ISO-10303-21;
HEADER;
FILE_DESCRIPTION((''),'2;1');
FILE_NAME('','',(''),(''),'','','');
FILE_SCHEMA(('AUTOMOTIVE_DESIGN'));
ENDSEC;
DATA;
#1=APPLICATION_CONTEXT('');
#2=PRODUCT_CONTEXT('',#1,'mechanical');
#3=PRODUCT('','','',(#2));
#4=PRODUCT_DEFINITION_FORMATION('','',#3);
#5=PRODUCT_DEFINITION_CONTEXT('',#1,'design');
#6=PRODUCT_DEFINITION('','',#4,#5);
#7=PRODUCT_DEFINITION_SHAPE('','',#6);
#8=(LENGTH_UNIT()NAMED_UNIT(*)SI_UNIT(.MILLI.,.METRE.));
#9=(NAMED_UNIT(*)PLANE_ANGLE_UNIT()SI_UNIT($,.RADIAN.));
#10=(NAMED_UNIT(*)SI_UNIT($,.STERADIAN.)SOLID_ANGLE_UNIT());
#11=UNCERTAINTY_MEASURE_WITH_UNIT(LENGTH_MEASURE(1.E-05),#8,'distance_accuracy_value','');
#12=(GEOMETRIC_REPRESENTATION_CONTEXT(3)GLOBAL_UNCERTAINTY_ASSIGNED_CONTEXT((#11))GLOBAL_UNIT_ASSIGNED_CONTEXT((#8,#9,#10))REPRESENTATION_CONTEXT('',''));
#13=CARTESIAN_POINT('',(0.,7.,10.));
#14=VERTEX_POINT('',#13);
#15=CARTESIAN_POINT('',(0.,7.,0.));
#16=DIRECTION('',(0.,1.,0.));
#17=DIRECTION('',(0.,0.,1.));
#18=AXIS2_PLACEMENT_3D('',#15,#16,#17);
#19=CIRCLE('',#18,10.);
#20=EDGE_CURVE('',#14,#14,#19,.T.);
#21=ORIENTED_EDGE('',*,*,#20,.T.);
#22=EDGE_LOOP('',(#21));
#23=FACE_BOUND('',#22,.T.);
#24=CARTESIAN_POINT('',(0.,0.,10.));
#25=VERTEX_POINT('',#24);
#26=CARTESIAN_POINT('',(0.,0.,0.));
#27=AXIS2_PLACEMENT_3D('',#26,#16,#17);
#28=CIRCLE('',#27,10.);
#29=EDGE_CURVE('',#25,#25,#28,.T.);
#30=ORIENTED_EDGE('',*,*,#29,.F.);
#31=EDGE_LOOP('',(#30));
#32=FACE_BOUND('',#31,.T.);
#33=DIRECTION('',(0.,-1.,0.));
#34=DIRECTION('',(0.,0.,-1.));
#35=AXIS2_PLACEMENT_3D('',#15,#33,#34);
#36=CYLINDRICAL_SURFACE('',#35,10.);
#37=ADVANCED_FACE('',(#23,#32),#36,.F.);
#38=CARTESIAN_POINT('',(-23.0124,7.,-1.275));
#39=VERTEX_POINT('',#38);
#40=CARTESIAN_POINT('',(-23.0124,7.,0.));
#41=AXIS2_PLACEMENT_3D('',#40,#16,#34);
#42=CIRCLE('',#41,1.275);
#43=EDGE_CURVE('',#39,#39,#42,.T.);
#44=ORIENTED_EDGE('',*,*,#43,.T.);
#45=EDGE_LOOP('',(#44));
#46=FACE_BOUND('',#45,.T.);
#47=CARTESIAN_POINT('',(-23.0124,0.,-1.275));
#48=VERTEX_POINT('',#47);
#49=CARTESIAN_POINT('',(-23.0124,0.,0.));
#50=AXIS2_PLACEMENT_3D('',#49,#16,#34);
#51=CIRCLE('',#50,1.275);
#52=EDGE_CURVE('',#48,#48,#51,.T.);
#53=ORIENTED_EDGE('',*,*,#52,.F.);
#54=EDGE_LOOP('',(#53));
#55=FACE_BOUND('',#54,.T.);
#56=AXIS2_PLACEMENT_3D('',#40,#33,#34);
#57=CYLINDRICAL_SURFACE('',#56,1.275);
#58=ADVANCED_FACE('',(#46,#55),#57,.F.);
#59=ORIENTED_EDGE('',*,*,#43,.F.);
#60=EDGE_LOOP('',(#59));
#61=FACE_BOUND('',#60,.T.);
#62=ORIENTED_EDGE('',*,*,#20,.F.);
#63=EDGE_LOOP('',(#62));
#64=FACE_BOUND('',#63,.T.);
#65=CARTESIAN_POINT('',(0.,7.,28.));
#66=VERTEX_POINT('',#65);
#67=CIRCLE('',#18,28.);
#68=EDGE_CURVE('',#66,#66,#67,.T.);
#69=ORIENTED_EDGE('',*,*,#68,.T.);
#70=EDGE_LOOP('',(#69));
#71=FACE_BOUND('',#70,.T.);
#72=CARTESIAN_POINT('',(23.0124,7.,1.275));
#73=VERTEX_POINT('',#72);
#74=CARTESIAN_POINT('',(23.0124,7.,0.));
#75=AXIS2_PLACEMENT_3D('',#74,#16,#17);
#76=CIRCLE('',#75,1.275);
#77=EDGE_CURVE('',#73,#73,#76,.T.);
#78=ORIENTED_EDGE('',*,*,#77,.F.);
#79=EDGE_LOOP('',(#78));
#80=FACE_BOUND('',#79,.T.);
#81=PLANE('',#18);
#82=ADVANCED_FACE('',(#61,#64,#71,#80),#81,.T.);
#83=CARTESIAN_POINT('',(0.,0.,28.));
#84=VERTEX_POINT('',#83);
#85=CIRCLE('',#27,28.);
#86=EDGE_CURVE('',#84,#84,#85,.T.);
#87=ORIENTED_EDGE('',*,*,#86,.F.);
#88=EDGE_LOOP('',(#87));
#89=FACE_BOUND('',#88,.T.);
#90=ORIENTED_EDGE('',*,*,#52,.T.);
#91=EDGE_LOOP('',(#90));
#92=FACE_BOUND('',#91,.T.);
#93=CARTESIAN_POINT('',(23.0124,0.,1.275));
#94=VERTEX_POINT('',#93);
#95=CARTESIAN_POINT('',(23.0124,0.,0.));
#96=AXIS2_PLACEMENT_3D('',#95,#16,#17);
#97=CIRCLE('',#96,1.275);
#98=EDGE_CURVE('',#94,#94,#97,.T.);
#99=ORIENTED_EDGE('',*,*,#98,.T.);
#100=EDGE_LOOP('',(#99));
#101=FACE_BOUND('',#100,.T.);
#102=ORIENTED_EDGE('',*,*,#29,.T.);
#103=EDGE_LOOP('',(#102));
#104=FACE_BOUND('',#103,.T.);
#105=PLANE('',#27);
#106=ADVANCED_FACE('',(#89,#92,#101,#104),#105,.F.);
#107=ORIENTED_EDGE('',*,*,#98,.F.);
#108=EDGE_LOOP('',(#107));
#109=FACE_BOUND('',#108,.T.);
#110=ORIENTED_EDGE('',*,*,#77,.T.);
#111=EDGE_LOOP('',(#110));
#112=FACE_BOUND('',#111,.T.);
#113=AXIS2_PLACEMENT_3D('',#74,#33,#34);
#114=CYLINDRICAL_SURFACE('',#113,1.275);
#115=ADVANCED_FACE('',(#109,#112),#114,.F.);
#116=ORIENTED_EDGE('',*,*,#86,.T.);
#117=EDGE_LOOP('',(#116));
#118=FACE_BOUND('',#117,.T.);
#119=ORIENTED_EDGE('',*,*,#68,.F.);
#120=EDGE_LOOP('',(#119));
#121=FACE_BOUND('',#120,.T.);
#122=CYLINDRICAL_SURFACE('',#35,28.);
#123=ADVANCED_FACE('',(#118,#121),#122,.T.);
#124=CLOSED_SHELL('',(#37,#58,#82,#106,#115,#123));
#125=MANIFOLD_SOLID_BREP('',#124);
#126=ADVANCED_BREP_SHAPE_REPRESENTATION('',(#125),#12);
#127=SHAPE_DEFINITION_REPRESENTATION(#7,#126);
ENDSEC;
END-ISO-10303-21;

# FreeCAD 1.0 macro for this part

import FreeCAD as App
import Part
import Sketcher

doc = App.newDocument("Part")
body = doc.addObject("PartDesign::Body", "Body")

# Sketch on XZ plane
sketch1 = doc.addObject("Sketcher::SketchObject", "Sketch")
body.addObject(sketch1)
sketch1.AttachmentSupport = (doc.XZ_Plane, [""])
sketch1.MapMode = "FlatFace"
sketch1.addGeometry(Part.Circle(App.Vector(0, 0, 0), App.Vector(0, 0, 1), 28), False)
sketch1.addConstraint([
    Sketcher.Constraint("Coincident", 0, 3, -1, 1),
    Sketcher.Constraint("Diameter", 0, 56.0),
])
pad1 = doc.addObject("PartDesign::Pad", "Pad")
body.addObject(pad1)
pad1.Profile = sketch1
pad1.Length = 7
pad1.Reversed = True

# Sketch on XZ plane
sketch2 = doc.addObject("Sketcher::SketchObject", "Sketch001")
body.addObject(sketch2)
sketch2.AttachmentSupport = (doc.XZ_Plane, [""])
sketch2.MapMode = "FlatFace"
sketch2.addGeometry(Part.Circle(App.Vector(0, 0, 0), App.Vector(0, 0, 1), 10), False)
sketch2.addConstraint([
    Sketcher.Constraint("Coincident", 0, 3, -1, 1),
    Sketcher.Constraint("Diameter", 0, 20.0),
])
pocket1 = doc.addObject("PartDesign::Pocket", "Pocket")
body.addObject(pocket1)
pocket1.Profile = sketch2
pocket1.Type = "ThroughAll"

# Sketch on XZ plane
sketch3 = doc.addObject("Sketcher::SketchObject", "Sketch002")
body.addObject(sketch3)
sketch3.AttachmentSupport = (doc.XZ_Plane, [""])
sketch3.MapMode = "FlatFace"
sketch3.addGeometry(Part.Circle(App.Vector(23, 0, 0), App.Vector(0, 0, 1), 1.3), False)
sketch3.addConstraint([
    Sketcher.Constraint("PointOnObject", 0, 3, -1),
    Sketcher.Constraint("Diameter", 0, 2.55),
    Sketcher.Constraint("DistanceX", -1, 1, 0, 3, 23.0124),
])
pocket2 = doc.addObject("PartDesign::Pocket", "Pocket001")
body.addObject(pocket2)
pocket2.Profile = sketch3
pocket2.Type = "ThroughAll"
doc.recompute()

polarpattern = doc.addObject("PartDesign::PolarPattern", "PolarPattern")
body.addObject(polarpattern)
polarpattern.Originals = [pocket2]
polarpattern.Axis = (doc.Y_Axis, [""])
polarpattern.Angle = 360
polarpattern.Occurrences = 2
body.Tip = polarpattern

doc.recompute()
